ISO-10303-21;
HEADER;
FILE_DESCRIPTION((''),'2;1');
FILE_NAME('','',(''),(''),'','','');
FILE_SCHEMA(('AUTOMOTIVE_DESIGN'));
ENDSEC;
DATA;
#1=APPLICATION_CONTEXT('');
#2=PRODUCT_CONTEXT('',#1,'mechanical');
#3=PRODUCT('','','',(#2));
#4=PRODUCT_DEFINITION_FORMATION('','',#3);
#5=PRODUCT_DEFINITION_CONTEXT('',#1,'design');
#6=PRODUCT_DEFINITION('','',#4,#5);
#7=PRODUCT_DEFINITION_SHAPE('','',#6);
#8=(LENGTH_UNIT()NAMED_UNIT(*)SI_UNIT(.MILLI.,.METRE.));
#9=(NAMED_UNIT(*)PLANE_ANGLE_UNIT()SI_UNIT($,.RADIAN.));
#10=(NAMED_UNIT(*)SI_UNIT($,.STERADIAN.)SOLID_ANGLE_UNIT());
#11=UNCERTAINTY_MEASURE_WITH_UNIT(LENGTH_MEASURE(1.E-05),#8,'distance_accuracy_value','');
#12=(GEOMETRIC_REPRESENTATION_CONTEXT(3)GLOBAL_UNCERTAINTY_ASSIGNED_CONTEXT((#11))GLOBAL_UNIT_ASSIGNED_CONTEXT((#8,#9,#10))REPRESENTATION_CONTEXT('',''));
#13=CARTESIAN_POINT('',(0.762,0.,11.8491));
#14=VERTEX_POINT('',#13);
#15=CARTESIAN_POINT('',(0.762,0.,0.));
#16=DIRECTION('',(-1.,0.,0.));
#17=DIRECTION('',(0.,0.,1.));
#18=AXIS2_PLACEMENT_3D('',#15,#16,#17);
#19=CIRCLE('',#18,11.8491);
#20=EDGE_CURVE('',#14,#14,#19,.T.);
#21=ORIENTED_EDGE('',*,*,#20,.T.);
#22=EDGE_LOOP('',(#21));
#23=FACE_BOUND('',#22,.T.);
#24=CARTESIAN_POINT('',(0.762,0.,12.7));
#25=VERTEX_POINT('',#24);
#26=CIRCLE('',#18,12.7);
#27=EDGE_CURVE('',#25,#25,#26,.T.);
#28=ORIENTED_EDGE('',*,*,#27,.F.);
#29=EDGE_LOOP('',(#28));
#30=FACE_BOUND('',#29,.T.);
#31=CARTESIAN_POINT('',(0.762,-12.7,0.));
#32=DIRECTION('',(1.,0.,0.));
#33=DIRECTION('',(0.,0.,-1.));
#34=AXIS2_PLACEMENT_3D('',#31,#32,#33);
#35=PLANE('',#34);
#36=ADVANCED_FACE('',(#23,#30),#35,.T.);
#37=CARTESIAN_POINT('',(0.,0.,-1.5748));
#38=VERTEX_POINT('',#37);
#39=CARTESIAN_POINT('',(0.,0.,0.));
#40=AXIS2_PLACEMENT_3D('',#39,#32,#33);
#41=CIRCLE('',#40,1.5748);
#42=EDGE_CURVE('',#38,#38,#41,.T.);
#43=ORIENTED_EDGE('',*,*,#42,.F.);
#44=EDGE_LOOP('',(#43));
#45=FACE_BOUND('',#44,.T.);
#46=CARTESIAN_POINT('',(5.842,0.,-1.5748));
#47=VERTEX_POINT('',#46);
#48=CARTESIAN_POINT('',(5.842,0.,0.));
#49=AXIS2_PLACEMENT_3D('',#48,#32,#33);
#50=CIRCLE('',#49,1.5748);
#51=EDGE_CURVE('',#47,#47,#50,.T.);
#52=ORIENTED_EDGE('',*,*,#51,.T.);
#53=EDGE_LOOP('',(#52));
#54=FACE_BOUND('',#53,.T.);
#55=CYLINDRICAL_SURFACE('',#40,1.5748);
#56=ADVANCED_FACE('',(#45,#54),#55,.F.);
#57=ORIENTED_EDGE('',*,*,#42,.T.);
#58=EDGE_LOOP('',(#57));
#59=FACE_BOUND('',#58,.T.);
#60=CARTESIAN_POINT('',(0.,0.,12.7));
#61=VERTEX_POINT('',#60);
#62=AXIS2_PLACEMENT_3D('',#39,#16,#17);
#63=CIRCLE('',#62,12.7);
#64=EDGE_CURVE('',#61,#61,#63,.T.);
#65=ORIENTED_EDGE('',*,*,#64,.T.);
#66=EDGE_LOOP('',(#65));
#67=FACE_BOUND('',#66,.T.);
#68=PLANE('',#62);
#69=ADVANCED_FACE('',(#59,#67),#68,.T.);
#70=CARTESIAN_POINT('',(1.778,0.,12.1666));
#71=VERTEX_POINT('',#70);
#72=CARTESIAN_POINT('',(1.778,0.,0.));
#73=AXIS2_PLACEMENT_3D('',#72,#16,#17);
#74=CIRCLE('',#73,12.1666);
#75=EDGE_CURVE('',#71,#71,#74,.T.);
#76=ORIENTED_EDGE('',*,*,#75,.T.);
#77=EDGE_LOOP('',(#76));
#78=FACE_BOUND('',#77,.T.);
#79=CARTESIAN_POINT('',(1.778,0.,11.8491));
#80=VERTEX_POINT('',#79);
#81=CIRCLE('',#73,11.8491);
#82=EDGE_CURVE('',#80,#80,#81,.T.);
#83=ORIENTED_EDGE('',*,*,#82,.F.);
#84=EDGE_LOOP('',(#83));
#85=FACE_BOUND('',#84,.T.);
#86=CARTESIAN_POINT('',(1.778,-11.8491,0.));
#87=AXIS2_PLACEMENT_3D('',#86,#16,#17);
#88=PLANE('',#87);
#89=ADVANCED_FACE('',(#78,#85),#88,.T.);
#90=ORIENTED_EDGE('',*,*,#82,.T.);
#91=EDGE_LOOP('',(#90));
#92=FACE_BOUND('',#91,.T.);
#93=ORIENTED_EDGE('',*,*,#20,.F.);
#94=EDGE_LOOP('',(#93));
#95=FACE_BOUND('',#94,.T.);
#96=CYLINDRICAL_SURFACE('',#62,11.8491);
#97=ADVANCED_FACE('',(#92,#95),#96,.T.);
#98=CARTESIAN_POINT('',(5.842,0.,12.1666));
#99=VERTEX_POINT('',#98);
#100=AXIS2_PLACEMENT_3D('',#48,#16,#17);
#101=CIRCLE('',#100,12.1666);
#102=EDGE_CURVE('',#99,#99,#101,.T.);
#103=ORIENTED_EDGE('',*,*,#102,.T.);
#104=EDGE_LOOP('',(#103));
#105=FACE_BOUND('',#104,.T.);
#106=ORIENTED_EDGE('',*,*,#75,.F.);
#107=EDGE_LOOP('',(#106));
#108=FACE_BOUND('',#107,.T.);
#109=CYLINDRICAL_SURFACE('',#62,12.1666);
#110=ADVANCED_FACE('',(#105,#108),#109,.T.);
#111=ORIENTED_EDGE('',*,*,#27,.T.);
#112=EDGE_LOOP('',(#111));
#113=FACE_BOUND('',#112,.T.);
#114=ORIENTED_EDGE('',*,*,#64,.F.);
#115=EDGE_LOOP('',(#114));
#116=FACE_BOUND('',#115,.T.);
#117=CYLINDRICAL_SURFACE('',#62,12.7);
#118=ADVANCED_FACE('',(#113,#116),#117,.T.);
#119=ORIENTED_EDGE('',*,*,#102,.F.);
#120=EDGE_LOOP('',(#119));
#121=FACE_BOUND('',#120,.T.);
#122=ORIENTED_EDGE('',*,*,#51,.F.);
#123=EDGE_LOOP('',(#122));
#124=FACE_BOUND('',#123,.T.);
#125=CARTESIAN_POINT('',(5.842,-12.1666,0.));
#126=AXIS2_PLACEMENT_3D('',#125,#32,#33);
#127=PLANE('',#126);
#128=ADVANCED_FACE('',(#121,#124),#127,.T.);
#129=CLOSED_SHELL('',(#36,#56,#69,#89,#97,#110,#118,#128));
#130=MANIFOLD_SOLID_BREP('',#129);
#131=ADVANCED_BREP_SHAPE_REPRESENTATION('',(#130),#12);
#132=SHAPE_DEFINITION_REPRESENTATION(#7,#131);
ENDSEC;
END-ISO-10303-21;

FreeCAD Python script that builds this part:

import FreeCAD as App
import Part
import Sketcher

V = App.Vector
Q = App.Units.Quantity

doc = App.newDocument("Part")
body = doc.addObject("PartDesign::Body", "Body")

sketch1 = body.newObject("Sketcher::SketchObject", "Sketch")
sketch1.AttachmentSupport = (doc.getObject("XY_Plane"), [""])
sketch1.MapMode = "FlatFace"
sketch1.addGeometry([
    Part.LineSegment(V(0, 0, 0), V(0, -12.7, 0)),
    Part.LineSegment(V(0, -12.7, 0), V(0.762, -12.7, 0)),
    Part.LineSegment(V(0.762, -12.7, 0), V(0.762, -11.8491, 0)),
    Part.LineSegment(V(0.762, -11.8491, 0), V(1.778, -11.8491, 0)),
    Part.LineSegment(V(1.778, -11.8491, 0), V(1.778, -12.1666, 0)),
    Part.LineSegment(V(1.778, -12.1666, 0), V(5.842, -12.1666, 0)),
    Part.LineSegment(V(5.842, -12.1666, 0), V(5.842, 0, 0)),
    Part.LineSegment(V(5.842, 0, 0), V(0, 0, 0)),
], False)
sketch1.addConstraint([
    Sketcher.Constraint("Coincident", 0, 2, 1, 1),
    Sketcher.Constraint("Coincident", 1, 2, 2, 1),
    Sketcher.Constraint("Coincident", 2, 2, 3, 1),
    Sketcher.Constraint("Coincident", 3, 2, 4, 1),
    Sketcher.Constraint("Coincident", 4, 2, 5, 1),
    Sketcher.Constraint("Coincident", 5, 2, 6, 1),
    Sketcher.Constraint("Coincident", 6, 2, 7, 1),
    Sketcher.Constraint("Coincident", 7, 2, 0, 1),
    Sketcher.Constraint("Vertical", 0),
    Sketcher.Constraint("Horizontal", 1),
    Sketcher.Constraint("Vertical", 2),
    Sketcher.Constraint("Horizontal", 3),
    Sketcher.Constraint("Vertical", 4),
    Sketcher.Constraint("Horizontal", 5),
    Sketcher.Constraint("Vertical", 6),
    Sketcher.Constraint("Horizontal", 7),
    Sketcher.Constraint("Coincident", 7, 2, -1, 1),
    Sketcher.Constraint("DistanceY", 0, 2, 0, 1, Q("0.5 in")),
    Sketcher.Constraint("DistanceX", 1, 1, 1, 2, Q("0.03 in")),
    Sketcher.Constraint("DistanceX", 3, 1, 3, 2, Q("0.04 in")),
    Sketcher.Constraint("DistanceX", 5, 1, 5, 2, Q("0.16 in")),
    Sketcher.Constraint("DistanceY", 6, 1, 6, 2, Q("0.479 in")),
    Sketcher.Constraint("DistanceY", 2, 1, 2, 2, Q("0.0335 in")),
])
revolution = body.newObject("PartDesign::Revolution", "Revolution")
revolution.Profile = sketch1
revolution.ReferenceAxis = (sketch1, ["H_Axis"])
revolution.Angle = 360

sketch2 = body.newObject("Sketcher::SketchObject", "Sketch001")
sketch2.AttachmentSupport = (doc.getObject("YZ_Plane"), [""])
sketch2.MapMode = "FlatFace"
sketch2.AttachmentOffset = App.Placement(V(0, 0, 0.23 * 25.4), App.Rotation())
sketch2.addGeometry(Part.Circle(V(0, 0, 0), V(0, 0, 1), 1.5748), False)
sketch2.addConstraint([
    Sketcher.Constraint("Coincident", 0, 3, -1, 1),
    Sketcher.Constraint("Diameter", 0, Q("0.124 in")),
])
pocket1 = body.newObject("PartDesign::Pocket", "Pocket")
pocket1.Profile = sketch2
pocket1.Type = "ThroughAll"

doc.recompute()
